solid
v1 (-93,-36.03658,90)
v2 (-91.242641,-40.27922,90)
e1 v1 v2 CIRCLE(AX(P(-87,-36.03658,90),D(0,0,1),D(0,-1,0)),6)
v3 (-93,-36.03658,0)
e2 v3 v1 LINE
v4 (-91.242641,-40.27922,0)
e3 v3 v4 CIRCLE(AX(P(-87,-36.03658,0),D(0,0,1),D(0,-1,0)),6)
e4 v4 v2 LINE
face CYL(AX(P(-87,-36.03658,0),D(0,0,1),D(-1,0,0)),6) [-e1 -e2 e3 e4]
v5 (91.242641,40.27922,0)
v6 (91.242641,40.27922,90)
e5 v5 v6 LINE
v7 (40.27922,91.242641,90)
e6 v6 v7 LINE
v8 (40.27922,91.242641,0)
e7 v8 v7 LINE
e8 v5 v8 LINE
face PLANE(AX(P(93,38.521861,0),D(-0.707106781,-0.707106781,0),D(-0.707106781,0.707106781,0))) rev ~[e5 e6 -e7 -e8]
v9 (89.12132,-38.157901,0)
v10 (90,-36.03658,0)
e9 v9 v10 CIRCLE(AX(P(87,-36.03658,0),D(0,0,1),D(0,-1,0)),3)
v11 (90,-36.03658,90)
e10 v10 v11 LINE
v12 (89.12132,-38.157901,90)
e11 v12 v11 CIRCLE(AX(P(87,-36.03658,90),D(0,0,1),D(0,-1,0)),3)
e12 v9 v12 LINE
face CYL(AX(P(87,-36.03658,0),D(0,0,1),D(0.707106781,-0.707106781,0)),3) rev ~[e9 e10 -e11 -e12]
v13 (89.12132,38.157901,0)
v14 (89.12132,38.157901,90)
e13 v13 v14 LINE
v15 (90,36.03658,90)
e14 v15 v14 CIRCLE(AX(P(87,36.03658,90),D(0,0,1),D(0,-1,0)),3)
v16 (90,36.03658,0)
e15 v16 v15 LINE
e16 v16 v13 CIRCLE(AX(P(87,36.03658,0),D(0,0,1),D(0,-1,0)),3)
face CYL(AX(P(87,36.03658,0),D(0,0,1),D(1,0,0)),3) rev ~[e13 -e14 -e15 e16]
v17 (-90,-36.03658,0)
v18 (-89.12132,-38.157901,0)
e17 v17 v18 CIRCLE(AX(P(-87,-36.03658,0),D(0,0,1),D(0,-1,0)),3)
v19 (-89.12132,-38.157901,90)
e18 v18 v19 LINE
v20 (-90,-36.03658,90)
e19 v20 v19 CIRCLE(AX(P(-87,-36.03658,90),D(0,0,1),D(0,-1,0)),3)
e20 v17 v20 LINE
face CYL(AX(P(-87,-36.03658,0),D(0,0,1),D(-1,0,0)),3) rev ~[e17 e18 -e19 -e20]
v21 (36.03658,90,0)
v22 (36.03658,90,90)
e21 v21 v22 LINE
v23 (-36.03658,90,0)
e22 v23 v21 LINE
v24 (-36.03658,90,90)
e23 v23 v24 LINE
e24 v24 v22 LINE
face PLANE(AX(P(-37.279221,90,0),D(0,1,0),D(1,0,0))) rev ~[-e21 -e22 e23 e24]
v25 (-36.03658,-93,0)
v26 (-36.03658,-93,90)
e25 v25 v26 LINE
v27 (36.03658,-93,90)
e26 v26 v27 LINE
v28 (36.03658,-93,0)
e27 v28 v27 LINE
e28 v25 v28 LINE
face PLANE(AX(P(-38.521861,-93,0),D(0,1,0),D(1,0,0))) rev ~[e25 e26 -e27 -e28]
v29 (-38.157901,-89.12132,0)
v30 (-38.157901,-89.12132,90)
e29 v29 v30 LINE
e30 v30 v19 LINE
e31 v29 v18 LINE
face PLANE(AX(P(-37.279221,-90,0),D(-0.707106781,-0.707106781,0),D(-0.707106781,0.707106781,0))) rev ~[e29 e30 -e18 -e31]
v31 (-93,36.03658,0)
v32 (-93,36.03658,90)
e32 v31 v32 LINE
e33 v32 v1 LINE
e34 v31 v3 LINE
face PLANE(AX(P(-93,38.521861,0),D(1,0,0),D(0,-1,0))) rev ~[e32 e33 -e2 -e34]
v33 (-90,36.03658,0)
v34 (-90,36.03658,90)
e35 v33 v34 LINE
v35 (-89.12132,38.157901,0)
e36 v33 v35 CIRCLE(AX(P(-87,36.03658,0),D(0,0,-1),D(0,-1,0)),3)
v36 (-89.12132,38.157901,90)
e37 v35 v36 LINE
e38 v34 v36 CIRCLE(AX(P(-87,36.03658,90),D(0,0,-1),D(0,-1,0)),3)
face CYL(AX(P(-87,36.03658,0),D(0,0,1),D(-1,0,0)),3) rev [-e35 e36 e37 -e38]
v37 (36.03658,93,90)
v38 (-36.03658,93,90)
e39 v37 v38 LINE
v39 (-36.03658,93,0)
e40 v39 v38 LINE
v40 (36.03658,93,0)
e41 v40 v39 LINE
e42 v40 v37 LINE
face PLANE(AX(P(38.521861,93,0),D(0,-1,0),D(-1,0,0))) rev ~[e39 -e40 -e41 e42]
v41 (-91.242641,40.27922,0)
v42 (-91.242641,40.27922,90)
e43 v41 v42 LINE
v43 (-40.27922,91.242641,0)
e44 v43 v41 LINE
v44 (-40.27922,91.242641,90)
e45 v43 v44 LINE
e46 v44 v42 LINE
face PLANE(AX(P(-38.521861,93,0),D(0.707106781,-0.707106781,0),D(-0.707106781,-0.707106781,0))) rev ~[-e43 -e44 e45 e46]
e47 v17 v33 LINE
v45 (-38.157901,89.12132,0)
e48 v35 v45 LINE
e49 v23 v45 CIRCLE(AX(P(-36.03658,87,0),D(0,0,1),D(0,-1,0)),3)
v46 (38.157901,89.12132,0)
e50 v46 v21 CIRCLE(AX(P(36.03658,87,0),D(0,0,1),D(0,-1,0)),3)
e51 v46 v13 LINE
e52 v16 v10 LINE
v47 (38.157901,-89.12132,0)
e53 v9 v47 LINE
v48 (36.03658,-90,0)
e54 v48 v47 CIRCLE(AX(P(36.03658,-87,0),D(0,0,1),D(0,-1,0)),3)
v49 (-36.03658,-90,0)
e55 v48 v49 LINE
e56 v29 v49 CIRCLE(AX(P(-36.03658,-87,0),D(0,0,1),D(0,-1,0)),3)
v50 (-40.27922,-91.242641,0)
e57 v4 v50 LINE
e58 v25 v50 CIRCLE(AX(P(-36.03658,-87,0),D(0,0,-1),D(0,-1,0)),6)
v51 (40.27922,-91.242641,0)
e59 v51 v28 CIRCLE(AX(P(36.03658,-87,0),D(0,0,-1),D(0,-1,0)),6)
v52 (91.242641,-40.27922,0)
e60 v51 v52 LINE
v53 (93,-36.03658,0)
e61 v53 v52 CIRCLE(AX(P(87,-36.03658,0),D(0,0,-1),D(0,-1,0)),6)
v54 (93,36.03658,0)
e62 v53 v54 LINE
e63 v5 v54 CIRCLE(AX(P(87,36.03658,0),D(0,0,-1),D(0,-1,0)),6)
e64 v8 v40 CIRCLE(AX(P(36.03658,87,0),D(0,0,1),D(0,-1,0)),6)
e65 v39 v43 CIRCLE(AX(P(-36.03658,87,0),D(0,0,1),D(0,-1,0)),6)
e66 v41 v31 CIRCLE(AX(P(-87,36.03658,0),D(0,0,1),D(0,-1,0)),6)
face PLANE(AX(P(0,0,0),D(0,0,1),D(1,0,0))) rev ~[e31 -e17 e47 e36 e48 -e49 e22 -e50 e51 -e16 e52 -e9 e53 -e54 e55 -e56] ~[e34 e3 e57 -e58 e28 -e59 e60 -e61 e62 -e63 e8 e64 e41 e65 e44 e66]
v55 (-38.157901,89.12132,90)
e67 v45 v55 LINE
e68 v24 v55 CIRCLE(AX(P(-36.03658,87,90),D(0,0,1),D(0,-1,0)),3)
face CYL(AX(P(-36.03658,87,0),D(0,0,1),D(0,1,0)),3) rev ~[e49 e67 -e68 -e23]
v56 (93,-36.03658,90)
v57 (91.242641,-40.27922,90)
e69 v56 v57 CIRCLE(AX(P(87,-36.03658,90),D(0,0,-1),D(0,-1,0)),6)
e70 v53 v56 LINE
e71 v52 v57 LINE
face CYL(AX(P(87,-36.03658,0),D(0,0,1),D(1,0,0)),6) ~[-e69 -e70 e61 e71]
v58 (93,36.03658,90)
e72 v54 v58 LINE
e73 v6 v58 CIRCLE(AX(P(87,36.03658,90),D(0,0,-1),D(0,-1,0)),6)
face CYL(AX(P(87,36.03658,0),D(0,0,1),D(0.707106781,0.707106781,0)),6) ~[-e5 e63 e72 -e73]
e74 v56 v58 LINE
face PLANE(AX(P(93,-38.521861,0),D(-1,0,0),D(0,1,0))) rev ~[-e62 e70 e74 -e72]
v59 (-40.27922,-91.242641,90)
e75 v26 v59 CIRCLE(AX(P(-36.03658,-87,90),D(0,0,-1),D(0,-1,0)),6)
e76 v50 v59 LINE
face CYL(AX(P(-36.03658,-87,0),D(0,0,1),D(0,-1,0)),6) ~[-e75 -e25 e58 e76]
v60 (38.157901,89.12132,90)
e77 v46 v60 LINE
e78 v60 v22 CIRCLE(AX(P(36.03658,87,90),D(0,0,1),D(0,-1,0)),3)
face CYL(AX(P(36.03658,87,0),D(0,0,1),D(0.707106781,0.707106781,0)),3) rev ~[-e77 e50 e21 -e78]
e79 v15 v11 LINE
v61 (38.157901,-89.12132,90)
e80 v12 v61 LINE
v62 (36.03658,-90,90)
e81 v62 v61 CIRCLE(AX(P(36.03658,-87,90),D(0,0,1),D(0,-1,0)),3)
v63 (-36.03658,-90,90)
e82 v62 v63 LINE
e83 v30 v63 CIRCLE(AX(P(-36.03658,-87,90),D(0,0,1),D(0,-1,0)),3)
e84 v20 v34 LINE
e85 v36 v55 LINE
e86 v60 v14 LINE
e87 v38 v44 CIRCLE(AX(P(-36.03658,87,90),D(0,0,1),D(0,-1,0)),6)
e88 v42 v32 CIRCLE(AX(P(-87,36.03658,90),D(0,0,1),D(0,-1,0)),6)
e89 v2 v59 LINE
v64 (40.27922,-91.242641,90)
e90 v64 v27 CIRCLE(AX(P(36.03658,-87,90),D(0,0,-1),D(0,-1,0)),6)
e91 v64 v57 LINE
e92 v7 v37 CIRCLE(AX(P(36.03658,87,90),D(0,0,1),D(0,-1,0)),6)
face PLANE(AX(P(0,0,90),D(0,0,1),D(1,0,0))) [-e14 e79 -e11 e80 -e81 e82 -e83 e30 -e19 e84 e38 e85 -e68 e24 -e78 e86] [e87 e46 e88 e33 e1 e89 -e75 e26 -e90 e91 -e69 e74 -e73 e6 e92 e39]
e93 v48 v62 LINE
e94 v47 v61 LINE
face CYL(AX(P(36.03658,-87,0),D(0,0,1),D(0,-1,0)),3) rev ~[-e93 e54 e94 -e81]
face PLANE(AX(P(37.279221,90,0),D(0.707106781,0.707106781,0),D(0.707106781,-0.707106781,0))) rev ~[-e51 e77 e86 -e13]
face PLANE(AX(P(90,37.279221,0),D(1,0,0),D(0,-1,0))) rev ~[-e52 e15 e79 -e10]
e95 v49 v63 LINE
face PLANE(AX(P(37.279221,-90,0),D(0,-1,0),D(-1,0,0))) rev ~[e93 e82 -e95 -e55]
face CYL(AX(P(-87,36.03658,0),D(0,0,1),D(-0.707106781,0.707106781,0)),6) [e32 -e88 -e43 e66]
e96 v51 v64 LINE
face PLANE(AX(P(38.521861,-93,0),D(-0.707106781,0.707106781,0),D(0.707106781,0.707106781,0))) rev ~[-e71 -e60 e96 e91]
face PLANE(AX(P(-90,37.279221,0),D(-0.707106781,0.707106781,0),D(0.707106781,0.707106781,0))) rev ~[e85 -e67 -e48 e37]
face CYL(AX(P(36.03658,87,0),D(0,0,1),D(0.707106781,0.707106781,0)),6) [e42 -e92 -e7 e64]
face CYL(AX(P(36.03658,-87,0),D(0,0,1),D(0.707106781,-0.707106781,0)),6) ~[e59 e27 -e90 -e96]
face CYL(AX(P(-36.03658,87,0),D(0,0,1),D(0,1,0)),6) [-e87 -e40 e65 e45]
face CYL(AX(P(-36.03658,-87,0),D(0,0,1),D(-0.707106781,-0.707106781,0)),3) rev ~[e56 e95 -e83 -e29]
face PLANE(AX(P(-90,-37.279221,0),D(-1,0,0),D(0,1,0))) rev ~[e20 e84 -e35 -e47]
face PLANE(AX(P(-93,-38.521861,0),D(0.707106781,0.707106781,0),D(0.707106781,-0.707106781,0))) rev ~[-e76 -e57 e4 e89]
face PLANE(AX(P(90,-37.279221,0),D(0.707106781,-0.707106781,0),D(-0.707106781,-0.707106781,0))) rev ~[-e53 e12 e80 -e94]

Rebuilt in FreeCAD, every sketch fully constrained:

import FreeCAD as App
import Part
import Sketcher

V = App.Vector
Q = App.Units.Quantity


def edges_at(feature, points):
    """Names of the edges that pass closest to the given points."""
    edges = feature.Shape.Edges
    near = lambda p: min(range(len(edges)), key=lambda i: edges[i].distToShape(Part.Vertex(*p))[0])
    return sorted({f"Edge{near(p) + 1}" for p in points})

doc = App.newDocument("Part")
params = doc.addObject("Spreadsheet::Sheet", "Params")
for row, (alias, value) in enumerate([
    ("pad1_length", "90 mm"),
    ("fillet_radius", "3 mm"),
    ("fillet2_radius", "6 mm"),
], start=1):
    params.set(f"A{row}", alias)
    params.set(f"B{row}", "=" + value)
    params.setAlias(f"B{row}", alias)

body = doc.addObject("PartDesign::Body", "Body")

# Sketch on XY plane
sketch1 = body.newObject("Sketcher::SketchObject", "Sketch")
sketch1.AttachmentSupport = (doc.getObject("XY_Plane"), [""])
sketch1.MapMode = "FlatFace"
sketch1.addGeometry([
    Part.LineSegment(V(93, 39, 0), V(39, 93, 0)),  # 0
    Part.LineSegment(V(39, 93, 0), V(-39, 93, 0)),  # 1
    Part.LineSegment(V(-39, 93, 0), V(-93, 39, 0)),  # 2
    Part.LineSegment(V(-93, 39, 0), V(-93, -39, 0)),  # 3
    Part.LineSegment(V(-93, -39, 0), V(-39, -93, 0)),  # 4
    Part.LineSegment(V(-39, -93, 0), V(39, -93, 0)),  # 5
    Part.LineSegment(V(39, -93, 0), V(93, -39, 0)),  # 6
    Part.LineSegment(V(93, -39, 0), V(93, 39, 0)),  # 7
    Part.LineSegment(V(-90, -37, 0), V(-90, 37, 0)),  # 8
    Part.LineSegment(V(-90, 37, 0), V(-37, 90, 0)),  # 9
    Part.LineSegment(V(-37, 90, 0), V(37, 90, 0)),  # 10
    Part.LineSegment(V(37, 90, 0), V(90, 37, 0)),  # 11
    Part.LineSegment(V(90, 37, 0), V(90, -37, 0)),  # 12
    Part.LineSegment(V(90, -37, 0), V(37, -90, 0)),  # 13
    Part.LineSegment(V(37, -90, 0), V(-37, -90, 0)),  # 14
    Part.LineSegment(V(-37, -90, 0), V(-90, -37, 0)),  # 15
], False)
sketch1.addConstraint([
    Sketcher.Constraint("Coincident", 0, 2, 1, 1),
    Sketcher.Constraint("Coincident", 1, 2, 2, 1),
    Sketcher.Constraint("Coincident", 2, 2, 3, 1),
    Sketcher.Constraint("Coincident", 3, 2, 4, 1),
    Sketcher.Constraint("Coincident", 4, 2, 5, 1),
    Sketcher.Constraint("Coincident", 5, 2, 6, 1),
    Sketcher.Constraint("Coincident", 6, 2, 7, 1),
    Sketcher.Constraint("Coincident", 7, 2, 0, 1),
    Sketcher.Constraint("Coincident", 8, 2, 9, 1),
    Sketcher.Constraint("Coincident", 9, 2, 10, 1),
    Sketcher.Constraint("Coincident", 10, 2, 11, 1),
    Sketcher.Constraint("Coincident", 11, 2, 12, 1),
    Sketcher.Constraint("Coincident", 12, 2, 13, 1),
    Sketcher.Constraint("Coincident", 13, 2, 14, 1),
    Sketcher.Constraint("Coincident", 14, 2, 15, 1),
    Sketcher.Constraint("Coincident", 15, 2, 8, 1),
    Sketcher.Constraint("Horizontal", 1),
    Sketcher.Constraint("Vertical", 3),
    Sketcher.Constraint("Horizontal", 5),
    Sketcher.Constraint("Vertical", 7),
    Sketcher.Constraint("Vertical", 8),
    Sketcher.Constraint("Horizontal", 10),
    Sketcher.Constraint("Vertical", 12),
    Sketcher.Constraint("Horizontal", 14),
    Sketcher.Constraint("Symmetric", 0, 2, 4, 2, -1, 1),
    Sketcher.Constraint("Symmetric", 2, 2, 6, 2, -1, 1),
    Sketcher.Constraint("Symmetric", 8, 2, 12, 2, -1, 1),
    Sketcher.Constraint("Symmetric", 9, 2, 13, 2, -1, 1),
    Sketcher.Constraint("Perpendicular", 0, 2),
    Sketcher.Constraint("Perpendicular", 2, 4),
    Sketcher.Constraint("Perpendicular", 4, 6),
    Sketcher.Constraint("Parallel", 6, 9),
    Sketcher.Constraint("Perpendicular", 9, 11),
    Sketcher.Constraint("Perpendicular", 13, 15),
    Sketcher.Constraint("Horizontal", 3, 2, 6, 2),
    Sketcher.Constraint("Horizontal", 8, 2, 11, 2),
    Sketcher.Constraint("Horizontal", 12, 2, 15, 2),
    Sketcher.Constraint("Vertical", 1, 2, 4, 2),
    Sketcher.Constraint("Equal", 5, 3),
    Sketcher.Constraint("Equal", 14, 8),
    Sketcher.Constraint("DistanceY", -1, 1, 0, 2, Q("93 mm")),
    Sketcher.Constraint("DistanceX", 8, 2, -1, 1, Q("90 mm")),
    Sketcher.Constraint("DistanceX", 10, 1, 10, 2, Q("74.558442 mm")),
    Sketcher.Constraint("DistanceX", 1, 2, 1, 1, Q("77.043722 mm")),
])
pad1 = body.newObject("PartDesign::Pad", "Pad")
pad1.Profile = sketch1
pad1.setExpression("Length", "Params.pad1_length")
doc.recompute()

fillet = body.newObject("PartDesign::Fillet", "Fillet")
fillet.Base = (pad1, edges_at(pad1, [
    (-37.279, 90, 45),
    (37.279, 90, 45),
    (90, 37.279, 45),
    (90, -37.279, 45),
    (37.279, -90, 45),
    (-37.279, -90, 45),
    (-90, -37.279, 45),
    (-90, 37.279, 45),
]))
fillet.setExpression("Radius", "Params.fillet_radius")
doc.recompute()

fillet2 = body.newObject("PartDesign::Fillet", "Fillet001")
fillet2.Base = (fillet, edges_at(fillet, [
    (-93, -38.522, 45),
    (-38.522, -93, 45),
    (38.522, -93, 45),
    (93, -38.522, 45),
    (93, 38.522, 45),
    (38.522, 93, 45),
    (-38.522, 93, 45),
    (-93, 38.522, 45),
]))
fillet2.setExpression("Radius", "Params.fillet2_radius")

doc.recompute()
